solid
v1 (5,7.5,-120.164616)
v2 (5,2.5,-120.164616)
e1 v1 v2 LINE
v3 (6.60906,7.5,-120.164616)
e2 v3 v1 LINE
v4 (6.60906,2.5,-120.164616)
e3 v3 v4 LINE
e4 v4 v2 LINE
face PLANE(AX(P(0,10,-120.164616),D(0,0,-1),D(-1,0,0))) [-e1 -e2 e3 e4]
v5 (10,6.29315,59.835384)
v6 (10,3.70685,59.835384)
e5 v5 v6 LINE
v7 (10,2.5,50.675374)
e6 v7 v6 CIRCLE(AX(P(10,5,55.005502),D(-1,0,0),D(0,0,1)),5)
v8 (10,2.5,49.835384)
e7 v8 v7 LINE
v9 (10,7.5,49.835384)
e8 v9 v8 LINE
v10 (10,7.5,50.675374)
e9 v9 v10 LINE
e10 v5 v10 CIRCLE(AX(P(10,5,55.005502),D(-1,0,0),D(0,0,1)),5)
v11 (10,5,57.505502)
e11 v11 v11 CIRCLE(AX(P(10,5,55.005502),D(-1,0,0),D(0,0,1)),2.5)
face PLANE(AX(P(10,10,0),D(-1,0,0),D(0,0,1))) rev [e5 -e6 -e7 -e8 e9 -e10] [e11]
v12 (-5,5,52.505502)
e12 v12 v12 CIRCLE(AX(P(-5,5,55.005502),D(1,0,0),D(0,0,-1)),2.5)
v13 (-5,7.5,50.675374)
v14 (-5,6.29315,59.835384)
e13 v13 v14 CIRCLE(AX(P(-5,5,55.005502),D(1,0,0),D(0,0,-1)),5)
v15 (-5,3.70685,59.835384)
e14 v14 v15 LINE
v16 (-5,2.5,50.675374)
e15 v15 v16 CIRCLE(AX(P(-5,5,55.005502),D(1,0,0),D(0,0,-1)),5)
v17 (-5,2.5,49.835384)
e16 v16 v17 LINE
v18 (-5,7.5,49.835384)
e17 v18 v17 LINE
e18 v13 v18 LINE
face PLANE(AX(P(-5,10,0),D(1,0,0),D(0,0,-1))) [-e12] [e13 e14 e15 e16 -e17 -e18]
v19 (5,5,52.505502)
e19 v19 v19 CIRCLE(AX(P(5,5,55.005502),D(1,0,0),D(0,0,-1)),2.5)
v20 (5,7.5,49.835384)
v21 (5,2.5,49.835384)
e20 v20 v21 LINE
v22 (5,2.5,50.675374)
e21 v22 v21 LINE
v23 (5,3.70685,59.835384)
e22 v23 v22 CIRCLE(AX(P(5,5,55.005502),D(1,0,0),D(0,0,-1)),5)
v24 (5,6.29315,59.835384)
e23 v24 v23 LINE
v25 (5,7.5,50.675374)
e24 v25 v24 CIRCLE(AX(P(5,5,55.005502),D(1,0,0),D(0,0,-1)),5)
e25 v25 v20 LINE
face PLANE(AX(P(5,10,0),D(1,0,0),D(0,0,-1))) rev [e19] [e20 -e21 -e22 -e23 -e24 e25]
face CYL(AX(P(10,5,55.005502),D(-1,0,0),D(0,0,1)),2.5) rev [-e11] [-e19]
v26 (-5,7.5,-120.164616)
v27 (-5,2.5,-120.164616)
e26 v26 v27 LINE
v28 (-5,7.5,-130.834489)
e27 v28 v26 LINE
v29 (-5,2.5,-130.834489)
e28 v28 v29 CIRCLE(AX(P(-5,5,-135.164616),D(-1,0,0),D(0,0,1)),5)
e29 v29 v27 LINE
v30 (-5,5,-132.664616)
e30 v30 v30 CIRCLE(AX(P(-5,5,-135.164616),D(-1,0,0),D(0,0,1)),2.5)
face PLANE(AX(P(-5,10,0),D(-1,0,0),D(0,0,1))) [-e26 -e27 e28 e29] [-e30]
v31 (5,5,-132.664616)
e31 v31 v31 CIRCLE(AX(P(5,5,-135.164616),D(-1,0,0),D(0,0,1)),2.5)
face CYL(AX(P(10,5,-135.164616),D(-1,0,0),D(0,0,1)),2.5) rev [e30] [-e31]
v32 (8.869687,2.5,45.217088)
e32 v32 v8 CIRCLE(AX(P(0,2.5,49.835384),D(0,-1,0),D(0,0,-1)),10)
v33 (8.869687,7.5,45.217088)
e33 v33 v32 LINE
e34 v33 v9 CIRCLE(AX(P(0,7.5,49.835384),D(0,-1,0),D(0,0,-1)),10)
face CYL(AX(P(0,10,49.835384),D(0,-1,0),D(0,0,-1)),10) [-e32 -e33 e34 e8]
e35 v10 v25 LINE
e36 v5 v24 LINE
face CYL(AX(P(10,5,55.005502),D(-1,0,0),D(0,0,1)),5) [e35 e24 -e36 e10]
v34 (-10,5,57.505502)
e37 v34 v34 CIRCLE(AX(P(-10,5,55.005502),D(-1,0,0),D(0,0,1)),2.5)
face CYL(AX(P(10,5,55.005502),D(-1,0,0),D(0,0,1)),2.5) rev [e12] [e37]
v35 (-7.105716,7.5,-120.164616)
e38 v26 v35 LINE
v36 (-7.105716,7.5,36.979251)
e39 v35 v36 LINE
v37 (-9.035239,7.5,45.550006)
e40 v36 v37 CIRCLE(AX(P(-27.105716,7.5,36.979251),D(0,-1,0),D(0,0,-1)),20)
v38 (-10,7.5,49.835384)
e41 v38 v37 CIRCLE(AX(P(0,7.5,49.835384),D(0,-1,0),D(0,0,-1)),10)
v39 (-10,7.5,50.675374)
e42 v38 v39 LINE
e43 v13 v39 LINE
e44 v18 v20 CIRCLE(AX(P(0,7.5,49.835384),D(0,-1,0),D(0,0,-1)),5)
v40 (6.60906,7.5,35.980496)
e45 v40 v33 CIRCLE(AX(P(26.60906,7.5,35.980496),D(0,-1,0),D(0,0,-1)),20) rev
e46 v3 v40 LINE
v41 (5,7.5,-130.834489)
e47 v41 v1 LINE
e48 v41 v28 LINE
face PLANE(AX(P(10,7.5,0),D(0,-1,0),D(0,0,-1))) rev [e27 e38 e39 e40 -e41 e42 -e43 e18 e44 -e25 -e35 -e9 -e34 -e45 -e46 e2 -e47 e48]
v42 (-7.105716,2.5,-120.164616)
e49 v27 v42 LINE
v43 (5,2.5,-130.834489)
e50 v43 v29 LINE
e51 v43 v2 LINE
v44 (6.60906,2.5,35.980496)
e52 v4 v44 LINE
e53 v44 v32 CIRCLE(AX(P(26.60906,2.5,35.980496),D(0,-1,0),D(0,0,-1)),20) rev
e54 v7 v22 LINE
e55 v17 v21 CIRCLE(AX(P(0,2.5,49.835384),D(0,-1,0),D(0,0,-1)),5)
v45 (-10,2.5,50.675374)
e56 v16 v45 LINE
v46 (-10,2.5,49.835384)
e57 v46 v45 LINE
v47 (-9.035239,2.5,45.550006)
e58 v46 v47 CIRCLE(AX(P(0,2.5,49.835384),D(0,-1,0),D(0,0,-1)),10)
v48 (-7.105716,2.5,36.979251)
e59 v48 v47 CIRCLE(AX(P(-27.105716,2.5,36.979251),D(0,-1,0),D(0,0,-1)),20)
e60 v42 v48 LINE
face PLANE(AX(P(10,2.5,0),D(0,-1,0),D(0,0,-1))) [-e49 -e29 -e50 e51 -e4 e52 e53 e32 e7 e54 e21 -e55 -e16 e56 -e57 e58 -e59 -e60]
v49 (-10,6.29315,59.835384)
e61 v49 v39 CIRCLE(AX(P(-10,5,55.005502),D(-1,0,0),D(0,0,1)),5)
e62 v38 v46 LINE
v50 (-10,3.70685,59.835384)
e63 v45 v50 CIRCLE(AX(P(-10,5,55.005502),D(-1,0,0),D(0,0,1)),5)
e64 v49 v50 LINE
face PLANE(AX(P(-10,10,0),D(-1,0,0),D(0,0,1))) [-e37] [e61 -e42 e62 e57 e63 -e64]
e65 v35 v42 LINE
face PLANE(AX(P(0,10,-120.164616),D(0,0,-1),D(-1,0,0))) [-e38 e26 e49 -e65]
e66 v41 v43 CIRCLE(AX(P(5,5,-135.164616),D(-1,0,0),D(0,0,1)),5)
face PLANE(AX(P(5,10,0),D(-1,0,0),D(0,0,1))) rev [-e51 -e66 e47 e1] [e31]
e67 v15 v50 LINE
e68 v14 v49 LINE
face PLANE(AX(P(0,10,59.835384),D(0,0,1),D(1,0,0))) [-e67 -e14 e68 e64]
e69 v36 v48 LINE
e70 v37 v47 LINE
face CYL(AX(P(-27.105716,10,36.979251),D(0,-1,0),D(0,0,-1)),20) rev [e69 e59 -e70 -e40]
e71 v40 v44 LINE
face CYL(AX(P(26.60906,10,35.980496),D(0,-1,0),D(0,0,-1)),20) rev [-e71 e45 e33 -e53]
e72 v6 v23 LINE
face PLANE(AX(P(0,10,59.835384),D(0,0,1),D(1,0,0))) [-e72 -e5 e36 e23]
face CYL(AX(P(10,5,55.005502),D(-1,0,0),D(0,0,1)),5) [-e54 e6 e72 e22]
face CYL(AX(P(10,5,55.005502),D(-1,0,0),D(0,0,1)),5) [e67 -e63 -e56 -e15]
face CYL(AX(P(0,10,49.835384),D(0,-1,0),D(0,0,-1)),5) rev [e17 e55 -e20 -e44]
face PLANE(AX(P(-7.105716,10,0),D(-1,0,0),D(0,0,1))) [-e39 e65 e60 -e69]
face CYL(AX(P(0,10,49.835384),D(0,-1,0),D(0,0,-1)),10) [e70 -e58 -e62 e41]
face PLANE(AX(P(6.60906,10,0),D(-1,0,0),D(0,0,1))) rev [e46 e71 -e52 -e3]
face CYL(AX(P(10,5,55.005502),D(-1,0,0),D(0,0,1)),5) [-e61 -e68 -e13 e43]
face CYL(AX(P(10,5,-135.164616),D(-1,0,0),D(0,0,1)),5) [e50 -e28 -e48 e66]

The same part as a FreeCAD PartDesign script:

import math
import FreeCAD as App
import Part
import Sketcher
from FreeCAD import Vector

doc = App.newDocument("Part")
params = doc.addObject("Spreadsheet::Sheet", "Params")
for row, (alias, value) in enumerate([
    ("sketch1_radius", "5 mm"),
    ("sketch1_radius2", "10 mm"),
    ("sketch1_radius3", "20 mm"),
    ("sketch1_height", "20 mm"),
    ("pad1_length", "10 mm"),
    ("sketch2_diameter", "5 mm"),
    ("sketch2_radius", "5 mm"),
], start=1):
    params.set(f"A{row}", alias)
    params.set(f"B{row}", "=" + value)
    params.setAlias(f"B{row}", alias)

body = doc.addObject("PartDesign::Body", "Body")

sketch1 = doc.addObject("Sketcher::SketchObject", "Sketch")
body.addObject(sketch1)
sketch1.AttachmentSupport = (doc.XZ_Plane, [""])
sketch1.MapMode = "FlatFace"
sketch1.addGeometry([
    Part.ArcOfCircle(Part.Circle(Vector(0, 49.8, 0), Vector(0, 0, 1), 5), math.radians(180), math.radians(270)),
    Part.ArcOfCircle(Part.Circle(Vector(0, 49.8, 0), Vector(0, 0, 1), 5), math.radians(-90), math.radians(0)),
    Part.LineSegment(Vector(5, 49.8, 0), Vector(5, 59.8, 0)),
    Part.LineSegment(Vector(5, 59.8, 0), Vector(10, 59.8, 0)),
    Part.LineSegment(Vector(10, 59.8, 0), Vector(10, 49.8, 0)),
    Part.ArcOfCircle(Part.Circle(Vector(0, 49.8, 0), Vector(0, 0, 1), 10), math.radians(-28), math.radians(0)),
    Part.ArcOfCircle(Part.Circle(Vector(26.6, 36, 0), Vector(0, 0, 1), 20), math.radians(152), math.radians(180)),
    Part.LineSegment(Vector(6.6, 36, 0), Vector(6.6, -120.2, 0)),
    Part.LineSegment(Vector(6.6, -120.2, 0), Vector(5, -120.2, 0)),
    Part.LineSegment(Vector(5, -120.2, 0), Vector(5, -140.2, 0)),
    Part.LineSegment(Vector(5, -140.2, 0), Vector(-5, -140.2, 0)),
    Part.LineSegment(Vector(-5, -140.2, 0), Vector(-5, -120.2, 0)),
    Part.LineSegment(Vector(-5, -120.2, 0), Vector(-7.1, -120.2, 0)),
    Part.LineSegment(Vector(-7.1, -120.2, 0), Vector(-7.1, 37, 0)),
    Part.ArcOfCircle(Part.Circle(Vector(-27.1, 37, 0), Vector(0, 0, 1), 20), math.radians(0), math.radians(25)),
    Part.ArcOfCircle(Part.Circle(Vector(0, 49.8, 0), Vector(0, 0, 1), 10), math.radians(180), math.radians(205)),
    Part.LineSegment(Vector(-10, 49.8, 0), Vector(-10, 59.8, 0)),
    Part.LineSegment(Vector(-10, 59.8, 0), Vector(-5, 59.8, 0)),
    Part.LineSegment(Vector(-5, 59.8, 0), Vector(-5, 49.8, 0)),
], False)
sketch1.addConstraint([
    Sketcher.Constraint("Tangent", 0, 2, 1, 1),
    Sketcher.Constraint("Tangent", 1, 2, 2, 1),
    Sketcher.Constraint("Coincident", 2, 2, 3, 1),
    Sketcher.Constraint("Coincident", 3, 2, 4, 1),
    Sketcher.Constraint("Tangent", 4, 2, 5, 2),
    Sketcher.Constraint("Tangent", 5, 1, 6, 1),
    Sketcher.Constraint("Tangent", 6, 2, 7, 1),
    Sketcher.Constraint("Coincident", 7, 2, 8, 1),
    Sketcher.Constraint("Coincident", 8, 2, 9, 1),
    Sketcher.Constraint("Coincident", 9, 2, 10, 1),
    Sketcher.Constraint("Coincident", 10, 2, 11, 1),
    Sketcher.Constraint("Coincident", 11, 2, 12, 1),
    Sketcher.Constraint("Coincident", 12, 2, 13, 1),
    Sketcher.Constraint("Tangent", 13, 2, 14, 1),
    Sketcher.Constraint("Tangent", 14, 2, 15, 2),
    Sketcher.Constraint("Tangent", 15, 1, 16, 1),
    Sketcher.Constraint("Coincident", 16, 2, 17, 1),
    Sketcher.Constraint("Coincident", 17, 2, 18, 1),
    Sketcher.Constraint("Tangent", 18, 2, 0, 1),
    Sketcher.Constraint("Vertical", 2),
    Sketcher.Constraint("Horizontal", 3),
    Sketcher.Constraint("Vertical", 4),
    Sketcher.Constraint("Vertical", 7),
    Sketcher.Constraint("Horizontal", 8),
    Sketcher.Constraint("Vertical", 9),
    Sketcher.Constraint("Horizontal", 10),
    Sketcher.Constraint("Vertical", 11),
    Sketcher.Constraint("Horizontal", 12),
    Sketcher.Constraint("Vertical", 13),
    Sketcher.Constraint("Vertical", 16),
    Sketcher.Constraint("Horizontal", 17),
    Sketcher.Constraint("Vertical", 18),
    Sketcher.Constraint("Coincident", 5, 3, 0, 3),
    Sketcher.Constraint("Coincident", 15, 3, 0, 3),
    Sketcher.Constraint("Equal", 0, 1),
    Sketcher.Constraint("Equal", 6, 14),
    Sketcher.Constraint("Equal", 5, 15),
    Sketcher.Constraint("Symmetric", 8, 2, 11, 2, -2),
    Sketcher.Constraint("Symmetric", 3, 2, 16, 2, -2),
    Sketcher.Constraint("PointOnObject", 0, 2, -2),
    Sketcher.Constraint("Vertical", 2, 2, 8, 2),
    Sketcher.Constraint("Equal", 10, 2),
    Sketcher.Constraint("Radius", 0, 5.0),
    Sketcher.Constraint("Radius", 5, 10.0),
    Sketcher.Constraint("Radius", 6, 20.0),
    Sketcher.Constraint("DistanceY", 9, 2, 9, 1, 20.0),
    Sketcher.Constraint("DistanceY", 7, 2, 0, 2, 165.0),
    Sketcher.Constraint("DistanceX", 8, 2, 8, 1, 1.60906),
    Sketcher.Constraint("DistanceX", 12, 2, 12, 1, 2.105716),
    Sketcher.Constraint("DistanceY", -1, 1, 14, 3, 36.979251),
])
sketch1.setExpression("Constraints[42]", "Params.sketch1_radius")
sketch1.setExpression("Constraints[43]", "Params.sketch1_radius2")
sketch1.setExpression("Constraints[44]", "Params.sketch1_radius3")
sketch1.setExpression("Constraints[45]", "Params.sketch1_height")
pad1 = doc.addObject("PartDesign::Pad", "Pad")
body.addObject(pad1)
pad1.Profile = sketch1
pad1.setExpression("Length", "Params.pad1_length")
pad1.Reversed = True

sketch2 = doc.addObject("Sketcher::SketchObject", "Sketch001")
body.addObject(sketch2)
sketch2.AttachmentSupport = (doc.YZ_Plane, [""])
sketch2.MapMode = "FlatFace"
sketch2.AttachmentOffset = App.Placement(Vector(0, 0, -10), App.Rotation())
sketch2.addGeometry([
    Part.ArcOfCircle(Part.Circle(Vector(5, -135.2, 0), Vector(0, 0, 1), 5), math.radians(-90), math.radians(0)),
    Part.LineSegment(Vector(10, -135.2, 0), Vector(10, -140.2, 0)),
    Part.LineSegment(Vector(10, -140.2, 0), Vector(5, -140.2, 0)),
    Part.ArcOfCircle(Part.Circle(Vector(5, -135.2, 0), Vector(0, 0, 1), 5), math.radians(180), math.radians(270)),
    Part.LineSegment(Vector(5, -140.2, 0), Vector(0, -140.2, 0)),
    Part.LineSegment(Vector(0, -140.2, 0), Vector(0, -135.2, 0)),
    Part.ArcOfCircle(Part.Circle(Vector(5, -135.2, 0), Vector(0, 0, 1), 5), math.radians(0), math.radians(60)),
    Part.LineSegment(Vector(7.5, -130.8, 0), Vector(7.5, 50.7, 0)),
    Part.ArcOfCircle(Part.Circle(Vector(5, 55, 0), Vector(0, 0, 1), 5), math.radians(-60), math.radians(0)),
    Part.LineSegment(Vector(10, 55, 0), Vector(10, -135.2, 0)),
    Part.ArcOfCircle(Part.Circle(Vector(5, -135.2, 0), Vector(0, 0, 1), 5), math.radians(120), math.radians(180)),
    Part.LineSegment(Vector(0, -135.2, 0), Vector(0, 55, 0)),
    Part.ArcOfCircle(Part.Circle(Vector(5, 55, 0), Vector(0, 0, 1), 5), math.radians(180), math.radians(240)),
    Part.LineSegment(Vector(2.5, 50.7, 0), Vector(2.5, -130.8, 0)),
    Part.LineSegment(Vector(10, 59.8, 0), Vector(10, 55, 0)),
    Part.ArcOfCircle(Part.Circle(Vector(5, 55, 0), Vector(0, 0, 1), 5), math.radians(0), math.radians(75)),
    Part.LineSegment(Vector(6.3, 59.8, 0), Vector(10, 59.8, 0)),
    Part.ArcOfCircle(Part.Circle(Vector(5, 55, 0), Vector(0, 0, 1), 5), math.radians(105), math.radians(180)),
    Part.LineSegment(Vector(0, 55, 0), Vector(0, 59.8, 0)),
    Part.LineSegment(Vector(0, 59.8, 0), Vector(3.7, 59.8, 0)),
    Part.Circle(Vector(5, 55, 0), Vector(0, 0, 1), 2.5),
    Part.Circle(Vector(5, -135.2, 0), Vector(0, 0, 1), 2.5),
], False)
sketch2.addConstraint([
    Sketcher.Constraint("Tangent", 0, 2, 1, 1),
    Sketcher.Constraint("Coincident", 1, 2, 2, 1),
    Sketcher.Constraint("Tangent", 2, 2, 0, 1),
    Sketcher.Constraint("Tangent", 3, 2, 4, 1),
    Sketcher.Constraint("Coincident", 4, 2, 5, 1),
    Sketcher.Constraint("Tangent", 5, 2, 3, 1),
    Sketcher.Constraint("Coincident", 6, 2, 7, 1),
    Sketcher.Constraint("Coincident", 7, 2, 8, 1),
    Sketcher.Constraint("Tangent", 8, 2, 9, 1),
    Sketcher.Constraint("Tangent", 9, 2, 6, 1),
    Sketcher.Constraint("Tangent", 10, 2, 11, 1),
    Sketcher.Constraint("Tangent", 11, 2, 12, 1),
    Sketcher.Constraint("Coincident", 12, 2, 13, 1),
    Sketcher.Constraint("Coincident", 13, 2, 10, 1),
    Sketcher.Constraint("Tangent", 14, 2, 15, 1),
    Sketcher.Constraint("Coincident", 15, 2, 16, 1),
    Sketcher.Constraint("Coincident", 16, 2, 14, 1),
    Sketcher.Constraint("Tangent", 17, 2, 18, 1),
    Sketcher.Constraint("Coincident", 18, 2, 19, 1),
    Sketcher.Constraint("Coincident", 19, 2, 17, 1),
    Sketcher.Constraint("Vertical", 1),
    Sketcher.Constraint("Horizontal", 2),
    Sketcher.Constraint("Horizontal", 4),
    Sketcher.Constraint("Vertical", 5),
    Sketcher.Constraint("Vertical", 7),
    Sketcher.Constraint("Vertical", 9),
    Sketcher.Constraint("Vertical", 11),
    Sketcher.Constraint("Vertical", 13),
    Sketcher.Constraint("Vertical", 14),
    Sketcher.Constraint("Horizontal", 16),
    Sketcher.Constraint("Vertical", 18),
    Sketcher.Constraint("Horizontal", 19),
    Sketcher.Constraint("Coincident", 3, 3, 0, 3),
    Sketcher.Constraint("Coincident", 6, 3, 0, 3),
    Sketcher.Constraint("Coincident", 10, 3, 0, 3),
    Sketcher.Constraint("Coincident", 12, 3, 8, 3),
    Sketcher.Constraint("Coincident", 15, 3, 8, 3),
    Sketcher.Constraint("Coincident", 17, 3, 8, 3),
    Sketcher.Constraint("Coincident", 20, 3, 8, 3),
    Sketcher.Constraint("Coincident", 21, 3, 0, 3),
    Sketcher.Constraint("Equal", 0, 3),
    Sketcher.Constraint("Equal", 3, 6),
    Sketcher.Constraint("Equal", 6, 8),
    Sketcher.Constraint("Equal", 8, 10),
    Sketcher.Constraint("Equal", 12, 15),
    Sketcher.Constraint("Equal", 15, 17),
    Sketcher.Constraint("Equal", 20, 21),
    Sketcher.Constraint("PointOnObject", 4, 2, -2),
    Sketcher.Constraint("Horizontal", 7, 2, 12, 2),
    Sketcher.Constraint("Horizontal", 16, 2, 18, 2),
    Sketcher.Constraint("Diameter", 20, 5.0),
    Sketcher.Constraint("Radius", 0, 5.0),
    Sketcher.Constraint("DistanceX", 12, 2, 7, 2, 5.0),
    Sketcher.Constraint("DistanceX", 16, 1, 16, 2, 3.70685),
    Sketcher.Constraint("DistanceY", -1, 1, 8, 3, 55.005502),
    Sketcher.Constraint("DistanceY", 7, 1, 7, 2, 181.509864),
])
sketch2.setExpression("Constraints[50]", "Params.sketch2_diameter")
sketch2.setExpression("Constraints[51]", "Params.sketch2_radius")
pocket1 = doc.addObject("PartDesign::Pocket", "Pocket")
body.addObject(pocket1)
pocket1.Profile = sketch2
pocket1.Type = "ThroughAll"
pocket1.Reversed = True

doc.recompute()
